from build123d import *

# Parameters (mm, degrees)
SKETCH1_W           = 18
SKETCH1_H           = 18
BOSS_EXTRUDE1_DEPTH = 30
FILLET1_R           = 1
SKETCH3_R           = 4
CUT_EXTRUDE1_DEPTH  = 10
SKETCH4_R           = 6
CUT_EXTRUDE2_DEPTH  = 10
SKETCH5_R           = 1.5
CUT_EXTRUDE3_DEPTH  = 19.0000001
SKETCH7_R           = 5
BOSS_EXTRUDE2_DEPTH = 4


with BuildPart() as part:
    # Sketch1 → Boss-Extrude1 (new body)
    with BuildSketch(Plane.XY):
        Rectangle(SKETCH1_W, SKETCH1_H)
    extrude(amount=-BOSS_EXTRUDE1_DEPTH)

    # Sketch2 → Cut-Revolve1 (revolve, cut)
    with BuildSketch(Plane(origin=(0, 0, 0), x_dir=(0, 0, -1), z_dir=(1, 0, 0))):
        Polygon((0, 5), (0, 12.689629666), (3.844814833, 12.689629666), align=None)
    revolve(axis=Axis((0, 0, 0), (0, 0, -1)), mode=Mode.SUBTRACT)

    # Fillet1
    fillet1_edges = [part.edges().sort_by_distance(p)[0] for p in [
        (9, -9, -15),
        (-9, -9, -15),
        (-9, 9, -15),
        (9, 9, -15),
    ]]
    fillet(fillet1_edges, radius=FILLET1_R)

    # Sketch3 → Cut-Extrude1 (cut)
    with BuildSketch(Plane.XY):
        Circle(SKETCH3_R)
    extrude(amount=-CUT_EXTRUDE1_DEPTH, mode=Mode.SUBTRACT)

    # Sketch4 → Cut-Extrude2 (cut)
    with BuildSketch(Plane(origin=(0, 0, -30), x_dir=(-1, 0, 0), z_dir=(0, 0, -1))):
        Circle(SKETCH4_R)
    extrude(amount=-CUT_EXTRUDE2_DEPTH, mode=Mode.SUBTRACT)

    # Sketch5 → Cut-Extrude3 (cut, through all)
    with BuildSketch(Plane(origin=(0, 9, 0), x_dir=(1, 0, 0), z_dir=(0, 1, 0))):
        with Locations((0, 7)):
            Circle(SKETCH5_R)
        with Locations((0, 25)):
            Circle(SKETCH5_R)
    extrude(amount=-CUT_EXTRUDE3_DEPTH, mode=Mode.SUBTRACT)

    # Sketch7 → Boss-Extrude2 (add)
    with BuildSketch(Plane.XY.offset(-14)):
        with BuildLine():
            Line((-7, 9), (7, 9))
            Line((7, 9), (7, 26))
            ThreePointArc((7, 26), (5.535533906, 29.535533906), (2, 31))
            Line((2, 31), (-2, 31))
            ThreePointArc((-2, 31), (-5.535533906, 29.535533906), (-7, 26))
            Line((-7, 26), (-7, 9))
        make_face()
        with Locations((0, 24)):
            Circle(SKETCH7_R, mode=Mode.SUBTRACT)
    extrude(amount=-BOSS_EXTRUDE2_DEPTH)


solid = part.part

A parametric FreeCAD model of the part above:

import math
import FreeCAD as App
import Part
import Sketcher


def edges_at(feature, points):
    """Names of the edges that pass closest to the given points."""
    edges = feature.Shape.Edges
    near = lambda p: min(range(len(edges)), key=lambda i: edges[i].distToShape(Part.Vertex(*p))[0])
    return sorted({f"Edge{near(p) + 1}" for p in points})

doc = App.newDocument("Part")
body = doc.addObject("PartDesign::Body", "Body")

# Sketch on XY plane
sketch1 = doc.addObject("Sketcher::SketchObject", "Sketch")
body.addObject(sketch1)
sketch1.AttachmentSupport = (doc.XY_Plane, [""])
sketch1.MapMode = "FlatFace"
sketch1.addGeometry(Part.LineSegment(App.Vector(-9, 9, 0), App.Vector(-9, -9, 0)), False)
sketch1.addGeometry(Part.LineSegment(App.Vector(-9, -9, 0), App.Vector(9, -9, 0)), False)
sketch1.addGeometry(Part.LineSegment(App.Vector(9, -9, 0), App.Vector(9, 9, 0)), False)
sketch1.addGeometry(Part.LineSegment(App.Vector(9, 9, 0), App.Vector(-9, 9, 0)), False)
sketch1.addConstraint(Sketcher.Constraint("Coincident", 0, 2, 1, 1))
sketch1.addConstraint(Sketcher.Constraint("Coincident", 1, 2, 2, 1))
sketch1.addConstraint(Sketcher.Constraint("Coincident", 2, 2, 3, 1))
sketch1.addConstraint(Sketcher.Constraint("Coincident", 3, 2, 0, 1))
sketch1.addConstraint(Sketcher.Constraint("Vertical", 0))
sketch1.addConstraint(Sketcher.Constraint("Horizontal", 1))
sketch1.addConstraint(Sketcher.Constraint("Vertical", 2))
sketch1.addConstraint(Sketcher.Constraint("Horizontal", 3))
sketch1.addConstraint(Sketcher.Constraint("Symmetric", 0, 2, 2, 2, -1, 1))
sketch1.addConstraint(Sketcher.Constraint("Equal", 3, 0))
sketch1.addConstraint(Sketcher.Constraint("DistanceX", 1, 1, 1, 2, 18.0))
pad1 = doc.addObject("PartDesign::Pad", "Pad")
body.addObject(pad1)
pad1.Profile = sketch1
pad1.Length = 30
pad1.Reversed = True

# Sketch on YZ plane
sketch2 = doc.addObject("Sketcher::SketchObject", "Sketch001")
body.addObject(sketch2)
sketch2.AttachmentSupport = (doc.YZ_Plane, [""])
sketch2.MapMode = "FlatFace"
sketch2.addGeometry(Part.LineSegment(App.Vector(12.7, 0, 0), App.Vector(5, 0, 0)), False)
sketch2.addGeometry(Part.LineSegment(App.Vector(5, 0, 0), App.Vector(12.7, -3.8, 0)), False)
sketch2.addGeometry(Part.LineSegment(App.Vector(12.7, -3.8, 0), App.Vector(12.7, 0, 0)), False)
sketch2.addConstraint(Sketcher.Constraint("Coincident", 0, 2, 1, 1))
sketch2.addConstraint(Sketcher.Constraint("Coincident", 1, 2, 2, 1))
sketch2.addConstraint(Sketcher.Constraint("Coincident", 2, 2, 0, 1))
sketch2.addConstraint(Sketcher.Constraint("Horizontal", 0))
sketch2.addConstraint(Sketcher.Constraint("Vertical", 2))
sketch2.addConstraint(Sketcher.Constraint("PointOnObject", 0, 2, -1))
sketch2.addConstraint(Sketcher.Constraint("DistanceX", -1, 1, 0, 2, 5.0))
sketch2.addConstraint(Sketcher.Constraint("DistanceX", 0, 2, 0, 1, 7.68963))
sketch2.addConstraint(Sketcher.Constraint("DistanceY", 2, 1, 2, 2, 3.844815))
groove = doc.addObject("PartDesign::Groove", "Groove")
body.addObject(groove)
groove.Profile = sketch2
groove.ReferenceAxis = (sketch2, ["V_Axis"])
groove.Angle = 360
doc.recompute()

fillet = doc.addObject("PartDesign::Fillet", "Fillet")
body.addObject(fillet)
fillet.Base = (groove, edges_at(groove, [
    (9, -9, -15),
    (-9, -9, -15),
    (-9, 9, -15),
    (9, 9, -15),
]))
fillet.Radius = 1

# Sketch on XY plane
sketch3 = doc.addObject("Sketcher::SketchObject", "Sketch002")
body.addObject(sketch3)
sketch3.AttachmentSupport = (doc.XY_Plane, [""])
sketch3.MapMode = "FlatFace"
sketch3.addGeometry(Part.Circle(App.Vector(0, 0, 0), App.Vector(0, 0, 1), 4), False)
sketch3.addConstraint(Sketcher.Constraint("Coincident", 0, 3, -1, 1))
sketch3.addConstraint(Sketcher.Constraint("Diameter", 0, 8.0))
pocket1 = doc.addObject("PartDesign::Pocket", "Pocket")
body.addObject(pocket1)
pocket1.Profile = sketch3
pocket1.Length = 10

# Sketch on XY plane
sketch4 = doc.addObject("Sketcher::SketchObject", "Sketch003")
body.addObject(sketch4)
sketch4.AttachmentSupport = (doc.XY_Plane, [""])
sketch4.MapMode = "FlatFace"
sketch4.AttachmentOffset = App.Placement(App.Vector(0, 0, -30), App.Rotation())
sketch4.addGeometry(Part.Circle(App.Vector(0, 0, 0), App.Vector(0, 0, 1), 6), False)
sketch4.addConstraint(Sketcher.Constraint("Coincident", 0, 3, -1, 1))
sketch4.addConstraint(Sketcher.Constraint("Diameter", 0, 12.0))
pocket2 = doc.addObject("PartDesign::Pocket", "Pocket001")
body.addObject(pocket2)
pocket2.Profile = sketch4
pocket2.Length = 10
pocket2.Reversed = True

# Sketch on XZ plane
sketch5 = doc.addObject("Sketcher::SketchObject", "Sketch004")
body.addObject(sketch5)
sketch5.AttachmentSupport = (doc.XZ_Plane, [""])
sketch5.MapMode = "FlatFace"
sketch5.AttachmentOffset = App.Placement(App.Vector(0, 0, -9), App.Rotation())
sketch5.addGeometry(Part.Circle(App.Vector(0, -7, 0), App.Vector(0, 0, 1), 1.5), False)
sketch5.addGeometry(Part.Circle(App.Vector(0, -25, 0), App.Vector(0, 0, 1), 1.5), False)
sketch5.addConstraint(Sketcher.Constraint("Equal", 0, 1))
sketch5.addConstraint(Sketcher.Constraint("PointOnObject", 0, 3, -2))
sketch5.addConstraint(Sketcher.Constraint("PointOnObject", 1, 3, -2))
sketch5.addConstraint(Sketcher.Constraint("Diameter", 0, 3.0))
sketch5.addConstraint(Sketcher.Constraint("DistanceY", 0, 3, -1, 1, 7.0))
sketch5.addConstraint(Sketcher.Constraint("DistanceY", 1, 3, -1, 1, 25.0))
pocket3 = doc.addObject("PartDesign::Pocket", "Pocket002")
body.addObject(pocket3)
pocket3.Profile = sketch5
pocket3.Type = "ThroughAll"
pocket3.Reversed = True

# Sketch on XY plane
sketch6 = doc.addObject("Sketcher::SketchObject", "Sketch005")
body.addObject(sketch6)
sketch6.AttachmentSupport = (doc.XY_Plane, [""])
sketch6.MapMode = "FlatFace"
sketch6.AttachmentOffset = App.Placement(App.Vector(0, 0, -14), App.Rotation())
sketch6.addGeometry(Part.LineSegment(App.Vector(-7, 9, 0), App.Vector(7, 9, 0)), False)
sketch6.addGeometry(Part.LineSegment(App.Vector(7, 9, 0), App.Vector(7, 26, 0)), False)
sketch6.addGeometry(Part.ArcOfCircle(Part.Circle(App.Vector(2, 26, 0), App.Vector(0, 0, 1), 5), math.radians(0), math.radians(90)), False)
sketch6.addGeometry(Part.LineSegment(App.Vector(2, 31, 0), App.Vector(-2, 31, 0)), False)
sketch6.addGeometry(Part.ArcOfCircle(Part.Circle(App.Vector(-2, 26, 0), App.Vector(0, 0, 1), 5), math.radians(90), math.radians(180)), False)
sketch6.addGeometry(Part.LineSegment(App.Vector(-7, 26, 0), App.Vector(-7, 9, 0)), False)
sketch6.addGeometry(Part.Circle(App.Vector(0, 24, 0), App.Vector(0, 0, 1), 5), False)
sketch6.addConstraint(Sketcher.Constraint("Coincident", 0, 2, 1, 1))
sketch6.addConstraint(Sketcher.Constraint("Tangent", 1, 2, 2, 1))
sketch6.addConstraint(Sketcher.Constraint("Tangent", 2, 2, 3, 1))
sketch6.addConstraint(Sketcher.Constraint("Tangent", 3, 2, 4, 1))
sketch6.addConstraint(Sketcher.Constraint("Tangent", 4, 2, 5, 1))
sketch6.addConstraint(Sketcher.Constraint("Coincident", 5, 2, 0, 1))
sketch6.addConstraint(Sketcher.Constraint("Horizontal", 0))
sketch6.addConstraint(Sketcher.Constraint("Vertical", 1))
sketch6.addConstraint(Sketcher.Constraint("Horizontal", 3))
sketch6.addConstraint(Sketcher.Constraint("Vertical", 5))
sketch6.addConstraint(Sketcher.Constraint("Equal", 2, 4))
sketch6.addConstraint(Sketcher.Constraint("Equal", 4, 6))
sketch6.addConstraint(Sketcher.Constraint("PointOnObject", 6, 3, -2))
sketch6.addConstraint(Sketcher.Constraint("Diameter", 6, 10.0))
sketch6.addConstraint(Sketcher.Constraint("DistanceX", 0, 1, 0, 2, 14.0))
sketch6.addConstraint(Sketcher.Constraint("DistanceY", 1, 1, 1, 2, 17.0))
sketch6.addConstraint(Sketcher.Constraint("DistanceX", -1, 1, 2, 3, 2.0))
sketch6.addConstraint(Sketcher.Constraint("DistanceY", -1, 1, 2, 3, 26.0))
sketch6.addConstraint(Sketcher.Constraint("DistanceY", -1, 1, 6, 3, 24.0))
pad2 = doc.addObject("PartDesign::Pad", "Pad001")
body.addObject(pad2)
pad2.Profile = sketch6
pad2.Length = 4
pad2.Reversed = True

doc.recompute()
